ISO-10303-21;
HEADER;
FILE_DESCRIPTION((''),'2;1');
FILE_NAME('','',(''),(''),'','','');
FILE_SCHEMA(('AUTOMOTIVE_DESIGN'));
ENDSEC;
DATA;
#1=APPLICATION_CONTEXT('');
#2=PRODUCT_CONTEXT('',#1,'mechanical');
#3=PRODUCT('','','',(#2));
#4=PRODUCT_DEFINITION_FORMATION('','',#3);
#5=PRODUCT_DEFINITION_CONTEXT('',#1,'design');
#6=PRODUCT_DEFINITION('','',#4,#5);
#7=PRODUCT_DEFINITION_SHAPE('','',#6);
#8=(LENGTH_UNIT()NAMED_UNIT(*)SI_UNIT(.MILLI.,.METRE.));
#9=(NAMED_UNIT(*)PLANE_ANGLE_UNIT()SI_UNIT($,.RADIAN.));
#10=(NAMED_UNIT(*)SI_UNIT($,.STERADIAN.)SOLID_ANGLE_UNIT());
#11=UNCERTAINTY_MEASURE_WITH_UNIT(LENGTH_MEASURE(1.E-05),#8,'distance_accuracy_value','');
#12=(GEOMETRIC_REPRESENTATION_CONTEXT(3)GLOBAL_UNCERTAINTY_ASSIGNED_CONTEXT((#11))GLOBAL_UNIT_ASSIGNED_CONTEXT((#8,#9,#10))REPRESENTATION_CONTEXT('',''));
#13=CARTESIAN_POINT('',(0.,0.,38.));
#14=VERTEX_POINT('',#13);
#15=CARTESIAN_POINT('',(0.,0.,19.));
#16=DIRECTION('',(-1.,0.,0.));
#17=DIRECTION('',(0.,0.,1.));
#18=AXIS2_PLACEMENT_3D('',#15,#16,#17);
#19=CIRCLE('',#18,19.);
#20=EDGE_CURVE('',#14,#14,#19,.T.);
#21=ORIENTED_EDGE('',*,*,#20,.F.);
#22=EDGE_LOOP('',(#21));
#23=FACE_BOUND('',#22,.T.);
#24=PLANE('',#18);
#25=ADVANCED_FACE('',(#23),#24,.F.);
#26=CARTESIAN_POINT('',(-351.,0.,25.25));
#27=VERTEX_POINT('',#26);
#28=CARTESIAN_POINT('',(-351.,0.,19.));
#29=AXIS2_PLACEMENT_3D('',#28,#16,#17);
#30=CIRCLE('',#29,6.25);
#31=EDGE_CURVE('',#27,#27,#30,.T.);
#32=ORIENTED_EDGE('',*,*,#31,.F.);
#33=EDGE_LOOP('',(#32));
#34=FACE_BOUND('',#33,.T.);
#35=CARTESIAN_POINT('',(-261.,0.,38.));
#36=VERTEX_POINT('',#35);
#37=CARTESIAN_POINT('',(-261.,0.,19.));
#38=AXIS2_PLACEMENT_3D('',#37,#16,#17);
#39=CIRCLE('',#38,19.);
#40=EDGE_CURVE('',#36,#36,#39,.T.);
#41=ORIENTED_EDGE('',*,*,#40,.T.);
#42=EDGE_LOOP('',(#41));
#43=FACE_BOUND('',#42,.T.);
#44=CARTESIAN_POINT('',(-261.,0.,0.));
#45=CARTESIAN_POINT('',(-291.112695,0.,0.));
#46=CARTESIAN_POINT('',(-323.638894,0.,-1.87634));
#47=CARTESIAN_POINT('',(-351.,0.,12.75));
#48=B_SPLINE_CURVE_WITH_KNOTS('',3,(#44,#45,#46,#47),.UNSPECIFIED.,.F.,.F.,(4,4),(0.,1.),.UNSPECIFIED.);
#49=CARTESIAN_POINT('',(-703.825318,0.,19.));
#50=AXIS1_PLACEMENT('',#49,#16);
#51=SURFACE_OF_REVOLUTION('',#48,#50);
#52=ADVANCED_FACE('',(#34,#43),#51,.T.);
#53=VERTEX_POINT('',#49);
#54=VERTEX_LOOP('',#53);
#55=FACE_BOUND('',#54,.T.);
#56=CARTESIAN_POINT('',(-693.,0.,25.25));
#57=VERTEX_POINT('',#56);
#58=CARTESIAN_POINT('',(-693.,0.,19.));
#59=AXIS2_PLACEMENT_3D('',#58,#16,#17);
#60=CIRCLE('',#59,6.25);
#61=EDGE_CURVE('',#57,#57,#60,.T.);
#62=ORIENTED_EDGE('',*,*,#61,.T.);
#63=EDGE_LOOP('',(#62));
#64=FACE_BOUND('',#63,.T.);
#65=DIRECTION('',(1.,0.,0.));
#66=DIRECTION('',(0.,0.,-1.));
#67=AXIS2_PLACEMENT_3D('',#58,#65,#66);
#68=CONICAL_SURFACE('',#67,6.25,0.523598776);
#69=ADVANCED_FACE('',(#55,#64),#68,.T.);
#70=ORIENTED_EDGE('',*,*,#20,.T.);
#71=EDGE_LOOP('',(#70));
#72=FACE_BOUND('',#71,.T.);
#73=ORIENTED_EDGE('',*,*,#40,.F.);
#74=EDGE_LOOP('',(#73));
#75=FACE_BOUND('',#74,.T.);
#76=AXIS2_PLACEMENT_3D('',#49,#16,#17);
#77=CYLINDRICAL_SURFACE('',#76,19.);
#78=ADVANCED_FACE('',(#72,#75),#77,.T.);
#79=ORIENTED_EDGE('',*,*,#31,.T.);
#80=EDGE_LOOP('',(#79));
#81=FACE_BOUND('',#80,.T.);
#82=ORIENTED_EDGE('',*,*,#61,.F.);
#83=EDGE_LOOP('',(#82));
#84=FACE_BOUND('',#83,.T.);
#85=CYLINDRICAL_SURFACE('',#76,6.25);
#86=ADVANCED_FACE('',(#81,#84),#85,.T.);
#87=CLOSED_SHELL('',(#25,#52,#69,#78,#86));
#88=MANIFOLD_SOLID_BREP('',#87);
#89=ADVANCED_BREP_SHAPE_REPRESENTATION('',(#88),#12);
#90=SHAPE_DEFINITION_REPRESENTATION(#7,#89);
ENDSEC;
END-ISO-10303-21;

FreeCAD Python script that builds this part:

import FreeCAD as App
import Part
import Sketcher

V = App.Vector
Q = App.Units.Quantity

doc = App.newDocument("Part")
params = doc.addObject("Spreadsheet::Sheet", "Params")
for row, (alias, value) in enumerate([
    ("sketch1_width", "342 mm"),
    ("sketch1_height", "19 mm"),
    ("revolution_angle", "360 deg"),
], start=1):
    params.set(f"A{row}", alias)
    params.set(f"B{row}", "=" + value)
    params.setAlias(f"B{row}", alias)

body = doc.addObject("PartDesign::Body", "Body")

sketch1 = body.newObject("Sketcher::SketchObject", "Sketch")
sketch1.AttachmentSupport = (doc.getObject("XZ_Plane"), [""])
sketch1.MapMode = "FlatFace"
sketch1.addGeometry([
    Part.LineSegment(V(-693, 12.75, 0), V(-703.825318, 19, 0)),
    Part.LineSegment(V(-703.825318, 19, 0), V(0, 19, 0)),
    Part.LineSegment(V(0, 19, 0), V(0, 0, 0)),
    Part.LineSegment(V(0, 0, 0), V(-261, 0, 0)),
    Part.BSplineCurve([V(-261, 0, 0), V(-291.112695, 0, 0), V(-323.638894, -1.87634, 0), V(-351, 12.75, 0)], [4, 4], [0, 1], False, 3, [1, 1, 1, 1], False),
    Part.LineSegment(V(-351, 12.75, 0), V(-693, 12.75, 0)),
], False)
sketch1.addGeometry(Part.LineSegment(V(-703.825318, 19, 0), V(0, 19, 0)), True)
sketch1.addConstraint([
    Sketcher.Constraint("Block", 4),
    Sketcher.Constraint("Coincident", 0, 2, 1, 1),
    Sketcher.Constraint("Coincident", 1, 2, 2, 1),
    Sketcher.Constraint("Coincident", 2, 2, 3, 1),
    Sketcher.Constraint("Coincident", 3, 2, 4, 1),
    Sketcher.Constraint("Coincident", 4, 2, 5, 1),
    Sketcher.Constraint("Coincident", 5, 2, 0, 1),
    Sketcher.Constraint("Horizontal", 1),
    Sketcher.Constraint("Vertical", 2),
    Sketcher.Constraint("Horizontal", 3),
    Sketcher.Constraint("Horizontal", 5),
    Sketcher.Constraint("Horizontal", 6),
    Sketcher.Constraint("Coincident", 6, 1, 0, 2),
    Sketcher.Constraint("PointOnObject", 1, 2, -2),
    Sketcher.Constraint("PointOnObject", 6, 2, -2),
    Sketcher.Constraint("DistanceX", 5, 2, 5, 1, 342.0),
    Sketcher.Constraint("DistanceY", 2, 2, 2, 1, 19.0),
    Sketcher.Constraint("Angle", 0, Q("150 deg")),
])
sketch1.setExpression("Constraints[15]", "Params.sketch1_width")
sketch1.setExpression("Constraints[16]", "Params.sketch1_height")
revolution = body.newObject("PartDesign::Revolution", "Revolution")
revolution.Profile = sketch1
revolution.ReferenceAxis = (sketch1, ["Axis0"])
revolution.setExpression("Angle", "Params.revolution_angle")

doc.recompute()
